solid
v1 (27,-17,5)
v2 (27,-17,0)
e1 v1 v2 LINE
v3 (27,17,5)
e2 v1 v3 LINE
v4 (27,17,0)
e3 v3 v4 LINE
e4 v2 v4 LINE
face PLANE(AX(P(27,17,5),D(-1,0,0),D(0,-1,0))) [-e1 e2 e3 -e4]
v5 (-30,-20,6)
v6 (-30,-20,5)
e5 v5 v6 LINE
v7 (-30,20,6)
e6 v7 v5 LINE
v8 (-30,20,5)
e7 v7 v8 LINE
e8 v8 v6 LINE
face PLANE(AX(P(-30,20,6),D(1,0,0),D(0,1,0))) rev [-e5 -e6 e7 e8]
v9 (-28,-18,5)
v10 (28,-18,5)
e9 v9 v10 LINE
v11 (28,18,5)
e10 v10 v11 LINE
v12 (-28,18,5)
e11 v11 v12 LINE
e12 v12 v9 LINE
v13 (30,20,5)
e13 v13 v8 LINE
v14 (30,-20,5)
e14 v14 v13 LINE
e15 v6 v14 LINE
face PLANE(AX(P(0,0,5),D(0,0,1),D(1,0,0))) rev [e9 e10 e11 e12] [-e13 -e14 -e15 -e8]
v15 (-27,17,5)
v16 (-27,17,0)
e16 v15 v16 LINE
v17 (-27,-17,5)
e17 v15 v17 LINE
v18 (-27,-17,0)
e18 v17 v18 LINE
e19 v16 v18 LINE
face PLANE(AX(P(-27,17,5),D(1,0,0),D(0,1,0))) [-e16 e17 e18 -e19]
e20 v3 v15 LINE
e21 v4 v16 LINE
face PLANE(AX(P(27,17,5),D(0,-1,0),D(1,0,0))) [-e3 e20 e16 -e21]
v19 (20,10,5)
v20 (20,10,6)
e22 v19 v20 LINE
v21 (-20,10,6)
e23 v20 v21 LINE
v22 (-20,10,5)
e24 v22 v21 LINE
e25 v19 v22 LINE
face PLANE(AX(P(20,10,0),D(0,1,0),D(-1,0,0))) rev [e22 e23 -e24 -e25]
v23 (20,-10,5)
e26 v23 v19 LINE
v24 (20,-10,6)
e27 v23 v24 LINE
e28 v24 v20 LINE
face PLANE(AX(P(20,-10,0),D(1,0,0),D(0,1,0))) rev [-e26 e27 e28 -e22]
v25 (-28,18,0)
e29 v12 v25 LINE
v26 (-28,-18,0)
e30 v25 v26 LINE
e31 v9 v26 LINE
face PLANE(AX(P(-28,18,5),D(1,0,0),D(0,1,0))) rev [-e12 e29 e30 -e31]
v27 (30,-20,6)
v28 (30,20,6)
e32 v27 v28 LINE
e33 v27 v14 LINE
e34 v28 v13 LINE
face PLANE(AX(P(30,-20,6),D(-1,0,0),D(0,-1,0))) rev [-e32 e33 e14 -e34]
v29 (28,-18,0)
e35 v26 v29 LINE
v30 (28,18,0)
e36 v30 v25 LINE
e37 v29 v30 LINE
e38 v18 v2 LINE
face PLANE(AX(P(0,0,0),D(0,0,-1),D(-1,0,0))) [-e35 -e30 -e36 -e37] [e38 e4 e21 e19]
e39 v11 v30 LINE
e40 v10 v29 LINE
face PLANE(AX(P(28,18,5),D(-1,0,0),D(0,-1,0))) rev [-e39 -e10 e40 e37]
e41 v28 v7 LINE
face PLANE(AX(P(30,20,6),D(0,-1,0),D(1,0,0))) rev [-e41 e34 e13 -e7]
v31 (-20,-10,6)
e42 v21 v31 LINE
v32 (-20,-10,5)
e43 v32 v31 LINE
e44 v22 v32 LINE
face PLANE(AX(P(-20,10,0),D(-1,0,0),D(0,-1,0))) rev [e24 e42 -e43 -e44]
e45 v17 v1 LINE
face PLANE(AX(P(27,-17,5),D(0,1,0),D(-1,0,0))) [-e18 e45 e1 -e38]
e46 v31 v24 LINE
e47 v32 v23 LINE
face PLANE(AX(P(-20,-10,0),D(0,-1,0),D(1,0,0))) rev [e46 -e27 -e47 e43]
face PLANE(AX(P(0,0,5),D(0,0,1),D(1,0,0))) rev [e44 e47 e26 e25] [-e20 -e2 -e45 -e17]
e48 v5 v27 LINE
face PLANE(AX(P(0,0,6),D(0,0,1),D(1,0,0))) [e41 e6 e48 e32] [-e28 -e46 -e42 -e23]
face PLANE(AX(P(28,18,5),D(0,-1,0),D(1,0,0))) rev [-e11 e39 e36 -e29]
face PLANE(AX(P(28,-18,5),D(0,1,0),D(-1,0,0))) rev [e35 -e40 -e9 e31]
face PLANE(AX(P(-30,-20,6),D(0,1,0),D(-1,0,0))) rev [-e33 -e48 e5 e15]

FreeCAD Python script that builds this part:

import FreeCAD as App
import Part
import Sketcher
from FreeCAD import Vector
Q = App.Units.Quantity


def add_polygon(sketch, points):
    """Adds a closed chain of lines whose ends are joined by coincident constraints."""
    first, n = sketch.GeometryCount, len(points)
    for a, b in zip(points, points[1:] + points[:1]):
        sketch.addGeometry(Part.LineSegment(App.Vector(*a, 0), App.Vector(*b, 0)), False)
    for i in range(n):
        sketch.addConstraint(Sketcher.Constraint("Coincident", first + i, 2, first + (i + 1) % n, 1))

doc = App.newDocument("Part")
body = doc.addObject("PartDesign::Body", "Body")

# Sketch on XY plane
sketch1 = body.newObject("Sketcher::SketchObject", "Sketch")
sketch1.AttachmentSupport = (doc.getObject("XY_Plane"), [""])
sketch1.MapMode = "FlatFace"
add_polygon(sketch1, [(-28, 18), (-28, -18), (28, -18), (28, 18)])  # lines 0-3
add_polygon(sketch1, [(27, -17), (-27, -17), (-27, 17), (27, 17)])  # lines 4-7
sketch1.addConstraint(Sketcher.Constraint("Vertical", 0))
sketch1.addConstraint(Sketcher.Constraint("Horizontal", 1))
sketch1.addConstraint(Sketcher.Constraint("Vertical", 2))
sketch1.addConstraint(Sketcher.Constraint("Horizontal", 3))
sketch1.addConstraint(Sketcher.Constraint("Horizontal", 4))
sketch1.addConstraint(Sketcher.Constraint("Vertical", 5))
sketch1.addConstraint(Sketcher.Constraint("Horizontal", 6))
sketch1.addConstraint(Sketcher.Constraint("Vertical", 7))
sketch1.addConstraint(Sketcher.Constraint("Symmetric", 0, 2, 2, 2, -1, 1))
sketch1.addConstraint(Sketcher.Constraint("Symmetric", 4, 2, 6, 2, -1, 1))
sketch1.addConstraint(Sketcher.Constraint("DistanceX", 1, 1, 1, 2, Q("56 mm")))
sketch1.addConstraint(Sketcher.Constraint("DistanceX", 4, 2, 4, 1, Q("54 mm")))
sketch1.addConstraint(Sketcher.Constraint("DistanceY", 0, 2, 0, 1, Q("36 mm")))
sketch1.addConstraint(Sketcher.Constraint("DistanceY", 5, 1, 5, 2, Q("34 mm")))
pad1 = body.newObject("PartDesign::Pad", "Pad")
pad1.Profile = sketch1
pad1.Length = 5

# Sketch on XY plane
sketch2 = body.newObject("Sketcher::SketchObject", "Sketch001")
sketch2.AttachmentSupport = (doc.getObject("XY_Plane"), [""])
sketch2.MapMode = "FlatFace"
sketch2.AttachmentOffset = App.Placement(Vector(0, 0, 5), App.Rotation())
add_polygon(sketch2, [(-30, 20), (-30, -20), (30, -20), (30, 20)])  # lines 0-3
sketch2.addConstraint(Sketcher.Constraint("Vertical", 0))
sketch2.addConstraint(Sketcher.Constraint("Horizontal", 1))
sketch2.addConstraint(Sketcher.Constraint("Vertical", 2))
sketch2.addConstraint(Sketcher.Constraint("Horizontal", 3))
sketch2.addConstraint(Sketcher.Constraint("Symmetric", 0, 2, 2, 2, -1, 1))
sketch2.addConstraint(Sketcher.Constraint("DistanceX", 1, 1, 1, 2, Q("60 mm")))
sketch2.addConstraint(Sketcher.Constraint("DistanceY", 0, 2, 0, 1, Q("40 mm")))
pad2 = body.newObject("PartDesign::Pad", "Pad001")
pad2.Profile = sketch2
pad2.Length = 1

# Sketch on XY plane
sketch3 = body.newObject("Sketcher::SketchObject", "Sketch002")
sketch3.AttachmentSupport = (doc.getObject("XY_Plane"), [""])
sketch3.MapMode = "FlatFace"
sketch3.AttachmentOffset = App.Placement(Vector(0, 0, 6), App.Rotation())
add_polygon(sketch3, [(-20, 10), (-20, -10), (20, -10), (20, 10)])  # lines 0-3
sketch3.addConstraint(Sketcher.Constraint("Vertical", 0))
sketch3.addConstraint(Sketcher.Constraint("Horizontal", 1))
sketch3.addConstraint(Sketcher.Constraint("Vertical", 2))
sketch3.addConstraint(Sketcher.Constraint("Horizontal", 3))
sketch3.addConstraint(Sketcher.Constraint("Symmetric", 0, 2, 2, 2, -1, 1))
sketch3.addConstraint(Sketcher.Constraint("DistanceX", 1, 1, 1, 2, Q("40 mm")))
sketch3.addConstraint(Sketcher.Constraint("DistanceY", 0, 2, 0, 1, Q("20 mm")))
pocket1 = body.newObject("PartDesign::Pocket", "Pocket")
pocket1.Profile = sketch3
pocket1.Type = "ThroughAll"

doc.recompute()
